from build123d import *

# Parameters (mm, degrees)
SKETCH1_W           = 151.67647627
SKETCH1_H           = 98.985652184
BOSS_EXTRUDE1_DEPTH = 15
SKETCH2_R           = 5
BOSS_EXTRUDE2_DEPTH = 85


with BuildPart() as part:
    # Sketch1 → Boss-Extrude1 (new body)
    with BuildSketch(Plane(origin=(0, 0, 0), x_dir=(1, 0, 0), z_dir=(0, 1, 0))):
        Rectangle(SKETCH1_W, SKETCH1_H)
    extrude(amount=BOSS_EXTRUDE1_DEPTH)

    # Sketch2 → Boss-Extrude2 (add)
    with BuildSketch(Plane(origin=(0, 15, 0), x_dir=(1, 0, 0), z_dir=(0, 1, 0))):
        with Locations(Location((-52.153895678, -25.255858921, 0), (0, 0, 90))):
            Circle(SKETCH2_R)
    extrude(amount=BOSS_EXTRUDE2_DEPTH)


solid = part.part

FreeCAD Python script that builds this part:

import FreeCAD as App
import Part
import Sketcher

doc = App.newDocument("Part")
body = doc.addObject("PartDesign::Body", "Body")

# Sketch on XZ plane
sketch1 = body.newObject("Sketcher::SketchObject", "Sketch")
sketch1.AttachmentSupport = (doc.getObject("XZ_Plane"), [""])
sketch1.MapMode = "FlatFace"
sketch1.addGeometry([
    Part.LineSegment(App.Vector(-75.838238, -49.492826, 0), App.Vector(-75.838238, 49.492826, 0)),
    Part.LineSegment(App.Vector(-75.838238, 49.492826, 0), App.Vector(75.838238, 49.492826, 0)),
    Part.LineSegment(App.Vector(75.838238, 49.492826, 0), App.Vector(75.838238, -49.492826, 0)),
    Part.LineSegment(App.Vector(75.838238, -49.492826, 0), App.Vector(-75.838238, -49.492826, 0)),
], False)
sketch1.addConstraint([
    Sketcher.Constraint("Coincident", 0, 2, 1, 1),
    Sketcher.Constraint("Coincident", 1, 2, 2, 1),
    Sketcher.Constraint("Coincident", 2, 2, 3, 1),
    Sketcher.Constraint("Coincident", 3, 2, 0, 1),
    Sketcher.Constraint("Vertical", 0),
    Sketcher.Constraint("Horizontal", 1),
    Sketcher.Constraint("Vertical", 2),
    Sketcher.Constraint("Horizontal", 3),
    Sketcher.Constraint("Symmetric", 0, 2, 2, 2, -1, 1),
    Sketcher.Constraint("DistanceX", 1, 1, 1, 2, 151.676476),
    Sketcher.Constraint("DistanceY", 0, 1, 0, 2, 98.985652),
])
pad1 = body.newObject("PartDesign::Pad", "Pad")
pad1.Profile = sketch1
pad1.Length = 15
pad1.Reversed = True

# Sketch on XZ plane
sketch2 = body.newObject("Sketcher::SketchObject", "Sketch001")
sketch2.AttachmentSupport = (doc.getObject("XZ_Plane"), [""])
sketch2.MapMode = "FlatFace"
sketch2.AttachmentOffset = App.Placement(App.Vector(0, 0, -15), App.Rotation())
sketch2.addGeometry(Part.Circle(App.Vector(-52.153896, 25.255859, 0), App.Vector(0, 0, 1), 5), False)
sketch2.addConstraint([
    Sketcher.Constraint("Diameter", 0, 10.0),
    Sketcher.Constraint("DistanceY", -1, 1, 0, 3, 25.255859),
    Sketcher.Constraint("DistanceX", 0, 3, -1, 1, 52.153896),
])
pad2 = body.newObject("PartDesign::Pad", "Pad001")
pad2.Profile = sketch2
pad2.Length = 85
pad2.Reversed = True

doc.recompute()
